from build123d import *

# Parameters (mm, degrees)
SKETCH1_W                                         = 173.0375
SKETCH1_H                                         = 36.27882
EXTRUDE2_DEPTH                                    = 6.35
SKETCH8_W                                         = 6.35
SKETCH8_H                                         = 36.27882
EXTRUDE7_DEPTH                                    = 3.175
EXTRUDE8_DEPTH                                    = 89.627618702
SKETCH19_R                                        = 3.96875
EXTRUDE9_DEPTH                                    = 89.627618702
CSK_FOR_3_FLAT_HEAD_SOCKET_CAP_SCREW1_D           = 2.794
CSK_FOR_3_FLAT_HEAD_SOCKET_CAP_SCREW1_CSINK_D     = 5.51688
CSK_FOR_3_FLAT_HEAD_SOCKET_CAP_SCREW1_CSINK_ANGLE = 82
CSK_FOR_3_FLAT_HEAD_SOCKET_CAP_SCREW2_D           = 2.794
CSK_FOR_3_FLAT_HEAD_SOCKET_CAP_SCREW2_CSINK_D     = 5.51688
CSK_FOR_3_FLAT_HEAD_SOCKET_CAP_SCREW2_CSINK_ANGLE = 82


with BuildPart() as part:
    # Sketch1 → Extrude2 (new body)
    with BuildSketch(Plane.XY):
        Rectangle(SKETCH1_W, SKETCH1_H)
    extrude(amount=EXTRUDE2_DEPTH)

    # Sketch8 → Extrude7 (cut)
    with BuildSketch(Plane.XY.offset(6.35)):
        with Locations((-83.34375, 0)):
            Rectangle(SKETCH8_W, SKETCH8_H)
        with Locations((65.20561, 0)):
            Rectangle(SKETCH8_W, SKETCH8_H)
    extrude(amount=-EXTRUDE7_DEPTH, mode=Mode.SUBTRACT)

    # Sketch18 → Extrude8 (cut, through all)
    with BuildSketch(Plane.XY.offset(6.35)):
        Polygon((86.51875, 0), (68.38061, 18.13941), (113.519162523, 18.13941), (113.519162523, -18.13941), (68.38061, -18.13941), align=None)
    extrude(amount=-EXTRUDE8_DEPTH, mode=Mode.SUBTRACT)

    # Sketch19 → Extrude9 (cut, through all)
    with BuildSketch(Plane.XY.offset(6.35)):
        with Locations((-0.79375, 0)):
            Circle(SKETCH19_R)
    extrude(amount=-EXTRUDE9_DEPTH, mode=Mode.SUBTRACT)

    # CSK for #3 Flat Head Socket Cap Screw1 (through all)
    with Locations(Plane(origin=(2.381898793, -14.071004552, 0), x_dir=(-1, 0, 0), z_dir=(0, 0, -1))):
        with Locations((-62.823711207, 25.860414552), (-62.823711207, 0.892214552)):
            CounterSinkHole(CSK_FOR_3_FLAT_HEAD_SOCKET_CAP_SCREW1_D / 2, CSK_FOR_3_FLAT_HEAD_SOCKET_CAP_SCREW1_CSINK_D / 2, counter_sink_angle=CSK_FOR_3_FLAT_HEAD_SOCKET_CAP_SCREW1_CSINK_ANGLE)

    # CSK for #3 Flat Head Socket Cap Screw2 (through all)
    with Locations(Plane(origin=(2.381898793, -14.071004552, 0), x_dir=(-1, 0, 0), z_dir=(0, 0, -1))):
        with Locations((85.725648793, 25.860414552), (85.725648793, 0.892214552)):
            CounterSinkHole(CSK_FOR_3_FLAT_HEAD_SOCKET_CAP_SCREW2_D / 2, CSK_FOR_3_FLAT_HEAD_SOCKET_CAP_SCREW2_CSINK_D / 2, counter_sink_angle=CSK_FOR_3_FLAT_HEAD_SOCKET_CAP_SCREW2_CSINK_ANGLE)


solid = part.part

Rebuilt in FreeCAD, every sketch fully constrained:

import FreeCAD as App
import Part
import Sketcher
from FreeCAD import Vector
Q = App.Units.Quantity

doc = App.newDocument("Part")
body = doc.addObject("PartDesign::Body", "Body")

# Sketch on XY plane
sketch1 = body.newObject("Sketcher::SketchObject", "Sketch")
sketch1.AttachmentSupport = (doc.getObject("XY_Plane"), [""])
sketch1.MapMode = "FlatFace"
sketch1.addGeometry(Part.LineSegment(Vector(-87, 18, 0), Vector(-87, -18, 0)), False)
sketch1.addGeometry(Part.LineSegment(Vector(-87, -18, 0), Vector(87, -18, 0)), False)
sketch1.addGeometry(Part.LineSegment(Vector(87, -18, 0), Vector(87, 18, 0)), False)
sketch1.addGeometry(Part.LineSegment(Vector(87, 18, 0), Vector(-87, 18, 0)), False)
sketch1.addConstraint(Sketcher.Constraint("Coincident", 0, 2, 1, 1))
sketch1.addConstraint(Sketcher.Constraint("Coincident", 1, 2, 2, 1))
sketch1.addConstraint(Sketcher.Constraint("Coincident", 2, 2, 3, 1))
sketch1.addConstraint(Sketcher.Constraint("Coincident", 3, 2, 0, 1))
sketch1.addConstraint(Sketcher.Constraint("Vertical", 0))
sketch1.addConstraint(Sketcher.Constraint("Horizontal", 1))
sketch1.addConstraint(Sketcher.Constraint("Vertical", 2))
sketch1.addConstraint(Sketcher.Constraint("Horizontal", 3))
sketch1.addConstraint(Sketcher.Constraint("Symmetric", 0, 2, 2, 2, -1, 1))
sketch1.addConstraint(Sketcher.Constraint("DistanceX", 1, 1, 1, 2, Q("6.8125 in")))
sketch1.addConstraint(Sketcher.Constraint("DistanceY", 0, 2, 0, 1, Q("1.4283 in")))
pad1 = body.newObject("PartDesign::Pad", "Pad")
pad1.Profile = sketch1
pad1.Length = Q("0.25 in")

# Sketch on XY plane
sketch2 = body.newObject("Sketcher::SketchObject", "Sketch001")
sketch2.AttachmentSupport = (doc.getObject("XY_Plane"), [""])
sketch2.MapMode = "FlatFace"
sketch2.AttachmentOffset = App.Placement(Vector(0, 0, 0.25 * 25.4), App.Rotation())
sketch2.addGeometry(Part.LineSegment(Vector(-87, 18, 0), Vector(-87, -18, 0)), False)
sketch2.addGeometry(Part.LineSegment(Vector(-87, -18, 0), Vector(-80, -18, 0)), False)
sketch2.addGeometry(Part.LineSegment(Vector(-80, -18, 0), Vector(-80, 18, 0)), False)
sketch2.addGeometry(Part.LineSegment(Vector(-80, 18, 0), Vector(-87, 18, 0)), False)
sketch2.addGeometry(Part.LineSegment(Vector(62, 18, 0), Vector(62, -18, 0)), False)
sketch2.addGeometry(Part.LineSegment(Vector(62, -18, 0), Vector(68, -18, 0)), False)
sketch2.addGeometry(Part.LineSegment(Vector(68, -18, 0), Vector(68, 18, 0)), False)
sketch2.addGeometry(Part.LineSegment(Vector(68, 18, 0), Vector(62, 18, 0)), False)
sketch2.addConstraint(Sketcher.Constraint("Coincident", 0, 2, 1, 1))
sketch2.addConstraint(Sketcher.Constraint("Coincident", 1, 2, 2, 1))
sketch2.addConstraint(Sketcher.Constraint("Coincident", 2, 2, 3, 1))
sketch2.addConstraint(Sketcher.Constraint("Coincident", 3, 2, 0, 1))
sketch2.addConstraint(Sketcher.Constraint("Coincident", 4, 2, 5, 1))
sketch2.addConstraint(Sketcher.Constraint("Coincident", 5, 2, 6, 1))
sketch2.addConstraint(Sketcher.Constraint("Coincident", 6, 2, 7, 1))
sketch2.addConstraint(Sketcher.Constraint("Coincident", 7, 2, 4, 1))
sketch2.addConstraint(Sketcher.Constraint("Vertical", 0))
sketch2.addConstraint(Sketcher.Constraint("Horizontal", 1))
sketch2.addConstraint(Sketcher.Constraint("Vertical", 2))
sketch2.addConstraint(Sketcher.Constraint("Horizontal", 3))
sketch2.addConstraint(Sketcher.Constraint("Vertical", 4))
sketch2.addConstraint(Sketcher.Constraint("Horizontal", 5))
sketch2.addConstraint(Sketcher.Constraint("Vertical", 6))
sketch2.addConstraint(Sketcher.Constraint("Horizontal", 7))
sketch2.addConstraint(Sketcher.Constraint("Horizontal", 1, 2, 4, 2))
sketch2.addConstraint(Sketcher.Constraint("Horizontal", 3, 2, 6, 2))
sketch2.addConstraint(Sketcher.Constraint("Equal", 3, 5))
sketch2.addConstraint(Sketcher.Constraint("DistanceX", 1, 1, 1, 2, Q("0.25 in")))
sketch2.addConstraint(Sketcher.Constraint("DistanceY", 0, 2, 0, 1, Q("1.4283 in")))
sketch2.addConstraint(Sketcher.Constraint("DistanceX", 0, 2, -1, 1, Q("3.40625 in")))
sketch2.addConstraint(Sketcher.Constraint("DistanceX", 1, 2, 4, 2, Q("5.5984 in")))
sketch2.addConstraint(Sketcher.Constraint("DistanceY", 0, 2, -1, 1, Q("18.13941 mm")))
pocket1 = body.newObject("PartDesign::Pocket", "Pocket")
pocket1.Profile = sketch2
pocket1.Length = Q("0.125 in")

# Sketch on XY plane
sketch3 = body.newObject("Sketcher::SketchObject", "Sketch002")
sketch3.AttachmentSupport = (doc.getObject("XY_Plane"), [""])
sketch3.MapMode = "FlatFace"
sketch3.AttachmentOffset = App.Placement(Vector(0, 0, 0.25 * 25.4), App.Rotation())
sketch3.addGeometry(Part.LineSegment(Vector(68, 18, 0), Vector(87, 0, 0)), False)
sketch3.addGeometry(Part.LineSegment(Vector(87, 0, 0), Vector(68, -18, 0)), False)
sketch3.addGeometry(Part.LineSegment(Vector(68, -18, 0), Vector(114, -18, 0)), False)
sketch3.addGeometry(Part.LineSegment(Vector(114, -18, 0), Vector(114, 18, 0)), False)
sketch3.addGeometry(Part.LineSegment(Vector(114, 18, 0), Vector(68, 18, 0)), False)
sketch3.addConstraint(Sketcher.Constraint("Coincident", 0, 2, 1, 1))
sketch3.addConstraint(Sketcher.Constraint("Coincident", 1, 2, 2, 1))
sketch3.addConstraint(Sketcher.Constraint("Coincident", 2, 2, 3, 1))
sketch3.addConstraint(Sketcher.Constraint("Coincident", 3, 2, 4, 1))
sketch3.addConstraint(Sketcher.Constraint("Coincident", 4, 2, 0, 1))
sketch3.addConstraint(Sketcher.Constraint("Horizontal", 2))
sketch3.addConstraint(Sketcher.Constraint("Vertical", 3))
sketch3.addConstraint(Sketcher.Constraint("Horizontal", 4))
sketch3.addConstraint(Sketcher.Constraint("Symmetric", 1, 2, 4, 2, -1))
sketch3.addConstraint(Sketcher.Constraint("PointOnObject", 0, 2, -1))
sketch3.addConstraint(Sketcher.Constraint("DistanceY", 3, 1, 3, 2, Q("1.4283 in")))
sketch3.addConstraint(Sketcher.Constraint("DistanceX", -1, 1, 0, 2, Q("3.40625 in")))
sketch3.addConstraint(Sketcher.Constraint("DistanceX", 1, 2, 0, 2, Q("0.7141 in")))
sketch3.addConstraint(Sketcher.Constraint("DistanceX", 2, 1, 2, 2, Q("45.138553 mm")))
pocket2 = body.newObject("PartDesign::Pocket", "Pocket001")
pocket2.Profile = sketch3
pocket2.Type = "ThroughAll"

# Sketch on XY plane
sketch4 = body.newObject("Sketcher::SketchObject", "Sketch003")
sketch4.AttachmentSupport = (doc.getObject("XY_Plane"), [""])
sketch4.MapMode = "FlatFace"
sketch4.AttachmentOffset = App.Placement(Vector(0, 0, 0.25 * 25.4), App.Rotation())
sketch4.addGeometry(Part.Circle(Vector(-0.8, 0, 0), Vector(0, 0, 1), 4), False)
sketch4.addConstraint(Sketcher.Constraint("PointOnObject", 0, 3, -1))
sketch4.addConstraint(Sketcher.Constraint("Diameter", 0, Q("0.3125 in")))
sketch4.addConstraint(Sketcher.Constraint("DistanceX", 0, 3, -1, 1, Q("0.03125 in")))
pocket3 = body.newObject("PartDesign::Pocket", "Pocket002")
pocket3.Profile = sketch4
pocket3.Type = "ThroughAll"

# Sketch on XY plane
sketch5 = body.newObject("Sketcher::SketchObject", "Sketch004")
sketch5.AttachmentSupport = (doc.getObject("XY_Plane"), [""])
sketch5.MapMode = "FlatFace"
sketch5.addGeometry(Part.Circle(Vector(65.2, 11.8, 0), Vector(0, 0, 1), 1.4), False)
sketch5.addGeometry(Part.Circle(Vector(65.2, -13.2, 0), Vector(0, 0, 1), 1.4), False)
sketch5.addConstraint(Sketcher.Constraint("Equal", 0, 1))
sketch5.addConstraint(Sketcher.Constraint("Vertical", 0, 3, 1, 3))
sketch5.addConstraint(Sketcher.Constraint("Diameter", 0, Q("0.11 in")))
sketch5.addConstraint(Sketcher.Constraint("DistanceY", 1, 3, 0, 3, Q("0.983 in")))
sketch5.addConstraint(Sketcher.Constraint("DistanceX", -1, 1, 0, 3, Q("65.20561 mm")))
sketch5.addConstraint(Sketcher.Constraint("DistanceY", -1, 1, 0, 3, Q("11.78941 mm")))
doc.recompute()
hole = body.newObject("PartDesign::Hole", "Hole")
hole.Profile = sketch5
hole.ThreadType = "None"
hole.Diameter = Q("0.11 in")
hole.DepthType = "ThroughAll"
hole.HoleCutType = "Countersink"
hole.HoleCutDiameter = Q("0.2172 in")
hole.HoleCutCountersinkAngle = 82
hole.Reversed = True

# Sketch on XY plane
sketch6 = body.newObject("Sketcher::SketchObject", "Sketch005")
sketch6.AttachmentSupport = (doc.getObject("XY_Plane"), [""])
sketch6.MapMode = "FlatFace"
sketch6.addGeometry(Part.Circle(Vector(-83.3, 11.8, 0), Vector(0, 0, 1), 1.4), False)
sketch6.addGeometry(Part.Circle(Vector(-83.3, -13.2, 0), Vector(0, 0, 1), 1.4), False)
sketch6.addConstraint(Sketcher.Constraint("Equal", 0, 1))
sketch6.addConstraint(Sketcher.Constraint("Vertical", 0, 3, 1, 3))
sketch6.addConstraint(Sketcher.Constraint("Diameter", 0, Q("0.11 in")))
sketch6.addConstraint(Sketcher.Constraint("DistanceX", 0, 3, -1, 1, Q("3.28125 in")))
sketch6.addConstraint(Sketcher.Constraint("DistanceY", 1, 3, 0, 3, Q("0.983 in")))
sketch6.addConstraint(Sketcher.Constraint("DistanceY", -1, 1, 0, 3, Q("11.78941 mm")))
doc.recompute()
hole2 = body.newObject("PartDesign::Hole", "Hole001")
hole2.Profile = sketch6
hole2.ThreadType = "None"
hole2.Diameter = Q("0.11 in")
hole2.DepthType = "ThroughAll"
hole2.HoleCutType = "Countersink"
hole2.HoleCutDiameter = Q("0.2172 in")
hole2.HoleCutCountersinkAngle = 82
hole2.Reversed = True

doc.recompute()
